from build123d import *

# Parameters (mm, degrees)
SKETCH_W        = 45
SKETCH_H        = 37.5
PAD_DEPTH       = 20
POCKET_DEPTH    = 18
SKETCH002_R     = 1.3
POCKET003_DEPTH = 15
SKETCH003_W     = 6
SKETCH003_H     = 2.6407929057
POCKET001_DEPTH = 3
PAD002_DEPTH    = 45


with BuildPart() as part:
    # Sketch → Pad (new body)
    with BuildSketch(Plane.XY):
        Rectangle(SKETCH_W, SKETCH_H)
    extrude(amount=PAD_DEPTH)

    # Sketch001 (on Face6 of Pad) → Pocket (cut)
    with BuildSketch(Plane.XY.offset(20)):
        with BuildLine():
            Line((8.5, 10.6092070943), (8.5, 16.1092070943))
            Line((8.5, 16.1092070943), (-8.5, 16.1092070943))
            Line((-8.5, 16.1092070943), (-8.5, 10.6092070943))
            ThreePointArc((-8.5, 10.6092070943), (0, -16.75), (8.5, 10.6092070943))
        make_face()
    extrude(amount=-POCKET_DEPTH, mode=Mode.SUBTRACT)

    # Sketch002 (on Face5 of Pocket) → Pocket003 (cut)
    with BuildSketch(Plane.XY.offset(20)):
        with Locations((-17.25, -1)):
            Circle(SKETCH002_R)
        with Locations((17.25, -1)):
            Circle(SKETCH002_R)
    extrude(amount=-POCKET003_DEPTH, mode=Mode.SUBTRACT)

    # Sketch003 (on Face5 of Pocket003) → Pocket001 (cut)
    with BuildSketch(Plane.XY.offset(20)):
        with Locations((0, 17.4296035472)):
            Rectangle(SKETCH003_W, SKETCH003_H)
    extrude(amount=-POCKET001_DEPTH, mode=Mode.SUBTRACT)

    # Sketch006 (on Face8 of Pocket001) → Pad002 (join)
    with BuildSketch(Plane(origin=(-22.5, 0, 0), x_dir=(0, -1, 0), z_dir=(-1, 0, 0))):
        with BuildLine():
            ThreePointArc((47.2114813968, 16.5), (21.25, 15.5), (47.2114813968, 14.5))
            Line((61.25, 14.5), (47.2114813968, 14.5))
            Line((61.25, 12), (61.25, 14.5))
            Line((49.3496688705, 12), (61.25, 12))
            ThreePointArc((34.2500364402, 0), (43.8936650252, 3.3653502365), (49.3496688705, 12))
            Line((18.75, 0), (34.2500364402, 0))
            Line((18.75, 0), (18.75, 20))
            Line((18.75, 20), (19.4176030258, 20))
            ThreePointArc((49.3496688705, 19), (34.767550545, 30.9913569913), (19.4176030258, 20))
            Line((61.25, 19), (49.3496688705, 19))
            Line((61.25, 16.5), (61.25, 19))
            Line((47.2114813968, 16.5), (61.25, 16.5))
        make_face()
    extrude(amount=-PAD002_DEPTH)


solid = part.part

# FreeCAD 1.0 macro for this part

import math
import FreeCAD as App
import Part
import Sketcher

V = App.Vector
Q = App.Units.Quantity

doc = App.newDocument("Part")
params = doc.addObject("Spreadsheet::Sheet", "Params")
for row, (alias, value) in enumerate([
    ("sketch1_width", "45 mm"),
    ("sketch1_height", "37.5 mm"),
    ("pad1_length", "20 mm"),
    ("sketch2_radius", "15 mm"),
    ("sketch2_width", "17 mm"),
    ("sketch2_height", "5.5 mm"),
    ("pocket1_length", "18 mm"),
    ("sketch3_diameter", "2.6 mm"),
    ("pocket2_length", "15 mm"),
    ("sketch4_width", "6 mm"),
    ("pocket3_length", "3 mm"),
    ("sketch5_radius", "13 mm"),
    ("sketch5_radius2", "15.5 mm"),
    ("sketch5_height", "20 mm"),
    ("sketch5_height2", "2.5 mm"),
    ("pad2_length", "45 mm"),
], start=1):
    params.set(f"A{row}", alias)
    params.set(f"B{row}", "=" + value)
    params.setAlias(f"B{row}", alias)

body = doc.addObject("PartDesign::Body", "Body")

# Sketch on XY plane
sketch1 = body.newObject("Sketcher::SketchObject", "Sketch")
sketch1.AttachmentSupport = (doc.getObject("XY_Plane"), [""])
sketch1.MapMode = "FlatFace"
sketch1.addGeometry(Part.LineSegment(V(-22, 19, 0), V(-22, -19, 0)), False)
sketch1.addGeometry(Part.LineSegment(V(-22, -19, 0), V(22, -19, 0)), False)
sketch1.addGeometry(Part.LineSegment(V(22, -19, 0), V(22, 19, 0)), False)
sketch1.addGeometry(Part.LineSegment(V(22, 19, 0), V(-22, 19, 0)), False)
sketch1.addConstraint(Sketcher.Constraint("Coincident", 0, 2, 1, 1))
sketch1.addConstraint(Sketcher.Constraint("Coincident", 1, 2, 2, 1))
sketch1.addConstraint(Sketcher.Constraint("Coincident", 2, 2, 3, 1))
sketch1.addConstraint(Sketcher.Constraint("Coincident", 3, 2, 0, 1))
sketch1.addConstraint(Sketcher.Constraint("Vertical", 0))
sketch1.addConstraint(Sketcher.Constraint("Horizontal", 1))
sketch1.addConstraint(Sketcher.Constraint("Vertical", 2))
sketch1.addConstraint(Sketcher.Constraint("Horizontal", 3))
sketch1.addConstraint(Sketcher.Constraint("Symmetric", 0, 2, 2, 2, -1, 1))
sketch1.addConstraint(Sketcher.Constraint("DistanceX", 1, 1, 1, 2, Q("45 mm")))
sketch1.addConstraint(Sketcher.Constraint("DistanceY", 0, 2, 0, 1, Q("37.5 mm")))
sketch1.setExpression("Constraints[9]", "Params.sketch1_width")
sketch1.setExpression("Constraints[10]", "Params.sketch1_height")
pad1 = body.newObject("PartDesign::Pad", "Pad")
pad1.Profile = sketch1
pad1.setExpression("Length", "Params.pad1_length")

# Sketch on XY plane
sketch2 = body.newObject("Sketcher::SketchObject", "Sketch001")
sketch2.AttachmentSupport = (doc.getObject("XY_Plane"), [""])
sketch2.MapMode = "FlatFace"
sketch2.AttachmentOffset = App.Placement(V(0, 0, 20), App.Rotation())
sketch2.addGeometry(Part.LineSegment(V(8, 11, 0), V(8, 16, 0)), False)
sketch2.addGeometry(Part.LineSegment(V(8, 16, 0), V(-8, 16, 0)), False)
sketch2.addGeometry(Part.LineSegment(V(-8, 16, 0), V(-8, 11, 0)), False)
sketch2.addGeometry(Part.ArcOfCircle(Part.Circle(V(0, -2, 0), V(0, 0, 1), 15), math.radians(125), math.radians(415)), False)
sketch2.addConstraint(Sketcher.Constraint("Coincident", 0, 2, 1, 1))
sketch2.addConstraint(Sketcher.Constraint("Coincident", 1, 2, 2, 1))
sketch2.addConstraint(Sketcher.Constraint("Coincident", 2, 2, 3, 1))
sketch2.addConstraint(Sketcher.Constraint("Coincident", 3, 2, 0, 1))
sketch2.addConstraint(Sketcher.Constraint("Vertical", 0))
sketch2.addConstraint(Sketcher.Constraint("Horizontal", 1))
sketch2.addConstraint(Sketcher.Constraint("Vertical", 2))
sketch2.addConstraint(Sketcher.Constraint("Symmetric", 2, 2, 3, 2, -2))
sketch2.addConstraint(Sketcher.Constraint("Radius", 3, Q("15 mm")))
sketch2.addConstraint(Sketcher.Constraint("DistanceX", 1, 2, 1, 1, Q("17 mm")))
sketch2.addConstraint(Sketcher.Constraint("DistanceY", 0, 1, 0, 2, Q("5.5 mm")))
sketch2.addConstraint(Sketcher.Constraint("DistanceY", 3, 3, -1, 1, Q("1.75 mm")))
sketch2.setExpression("Constraints[8]", "Params.sketch2_radius")
sketch2.setExpression("Constraints[9]", "Params.sketch2_width")
sketch2.setExpression("Constraints[10]", "Params.sketch2_height")
pocket1 = body.newObject("PartDesign::Pocket", "Pocket")
pocket1.Profile = sketch2
pocket1.setExpression("Length", "Params.pocket1_length")

# Sketch on XY plane
sketch3 = body.newObject("Sketcher::SketchObject", "Sketch002")
sketch3.AttachmentSupport = (doc.getObject("XY_Plane"), [""])
sketch3.MapMode = "FlatFace"
sketch3.AttachmentOffset = App.Placement(V(0, 0, 20), App.Rotation())
sketch3.addGeometry(Part.Circle(V(-17.2, -1, 0), V(0, 0, 1), 1.3), False)
sketch3.addGeometry(Part.Circle(V(17.2, -1, 0), V(0, 0, 1), 1.3), False)
sketch3.addConstraint(Sketcher.Constraint("Equal", 0, 1))
sketch3.addConstraint(Sketcher.Constraint("Symmetric", 0, 3, 1, 3, -2))
sketch3.addConstraint(Sketcher.Constraint("Diameter", 0, Q("2.6 mm")))
sketch3.addConstraint(Sketcher.Constraint("DistanceY", 0, 3, -1, 1, Q("1 mm")))
sketch3.addConstraint(Sketcher.Constraint("DistanceX", 0, 3, 1, 3, Q("34.5 mm")))
sketch3.setExpression("Constraints[2]", "Params.sketch3_diameter")
pocket2 = body.newObject("PartDesign::Pocket", "Pocket001")
pocket2.Profile = sketch3
pocket2.setExpression("Length", "Params.pocket2_length")

# Sketch on XY plane
sketch4 = body.newObject("Sketcher::SketchObject", "Sketch003")
sketch4.AttachmentSupport = (doc.getObject("XY_Plane"), [""])
sketch4.MapMode = "FlatFace"
sketch4.AttachmentOffset = App.Placement(V(0, 0, 20), App.Rotation())
sketch4.addGeometry(Part.LineSegment(V(-3, 18.8, 0), V(-3, 16.1, 0)), False)
sketch4.addGeometry(Part.LineSegment(V(-3, 16.1, 0), V(3, 16.1, 0)), False)
sketch4.addGeometry(Part.LineSegment(V(3, 16.1, 0), V(3, 18.8, 0)), False)
sketch4.addGeometry(Part.LineSegment(V(3, 18.8, 0), V(-3, 18.8, 0)), False)
sketch4.addConstraint(Sketcher.Constraint("Coincident", 0, 2, 1, 1))
sketch4.addConstraint(Sketcher.Constraint("Coincident", 1, 2, 2, 1))
sketch4.addConstraint(Sketcher.Constraint("Coincident", 2, 2, 3, 1))
sketch4.addConstraint(Sketcher.Constraint("Coincident", 3, 2, 0, 1))
sketch4.addConstraint(Sketcher.Constraint("Vertical", 0))
sketch4.addConstraint(Sketcher.Constraint("Horizontal", 1))
sketch4.addConstraint(Sketcher.Constraint("Vertical", 2))
sketch4.addConstraint(Sketcher.Constraint("Horizontal", 3))
sketch4.addConstraint(Sketcher.Constraint("DistanceX", 1, 1, 1, 2, Q("6 mm")))
sketch4.addConstraint(Sketcher.Constraint("DistanceX", 0, 2, -1, 1, Q("3 mm")))
sketch4.addConstraint(Sketcher.Constraint("DistanceY", -1, 1, 2, 2, Q("18.75 mm")))
sketch4.addConstraint(Sketcher.Constraint("DistanceY", 0, 2, 0, 1, Q("2.640793 mm")))
sketch4.setExpression("Constraints[8]", "Params.sketch4_width")
pocket3 = body.newObject("PartDesign::Pocket", "Pocket002")
pocket3.Profile = sketch4
pocket3.setExpression("Length", "Params.pocket3_length")

# Sketch on YZ plane
sketch5 = body.newObject("Sketcher::SketchObject", "Sketch004")
sketch5.AttachmentSupport = (doc.getObject("YZ_Plane"), [""])
sketch5.MapMode = "FlatFace"
sketch5.AttachmentOffset = App.Placement(V(0, 0, -22.5), App.Rotation())
sketch5.addGeometry(Part.ArcOfCircle(Part.Circle(V(-34.2, 15.5, 0), V(0, 0, 1), 13), math.radians(-176), math.radians(176)), False)
sketch5.addGeometry(Part.LineSegment(V(-47.2, 16.5, 0), V(-61.2, 16.5, 0)), False)
sketch5.addGeometry(Part.LineSegment(V(-61.2, 16.5, 0), V(-61.2, 19, 0)), False)
sketch5.addGeometry(Part.LineSegment(V(-61.2, 19, 0), V(-49.3, 19, 0)), False)
sketch5.addGeometry(Part.ArcOfCircle(Part.Circle(V(-34.2, 15.5, 0), V(0, 0, 1), 15.5), math.radians(17), math.radians(167)), False)
sketch5.addGeometry(Part.LineSegment(V(-19.4, 20, 0), V(-18.8, 20, 0)), False)
sketch5.addGeometry(Part.LineSegment(V(-18.8, 20, 0), V(-18.8, 0, 0)), False)
sketch5.addGeometry(Part.LineSegment(V(-18.8, 0, 0), V(-34.3, 0, 0)), False)
sketch5.addGeometry(Part.ArcOfCircle(Part.Circle(V(-34.2, 15.5, 0), V(0, 0, 1), 15.5), math.radians(-167), math.radians(-90)), False)
sketch5.addGeometry(Part.LineSegment(V(-49.3, 12, 0), V(-61.2, 12, 0)), False)
sketch5.addGeometry(Part.LineSegment(V(-61.2, 12, 0), V(-61.2, 14.5, 0)), False)
sketch5.addGeometry(Part.LineSegment(V(-61.2, 14.5, 0), V(-47.2, 14.5, 0)), False)
sketch5.addConstraint(Sketcher.Constraint("Coincident", 0, 2, 1, 1))
sketch5.addConstraint(Sketcher.Constraint("Coincident", 1, 2, 2, 1))
sketch5.addConstraint(Sketcher.Constraint("Coincident", 2, 2, 3, 1))
sketch5.addConstraint(Sketcher.Constraint("Coincident", 3, 2, 4, 2))
sketch5.addConstraint(Sketcher.Constraint("Coincident", 4, 1, 5, 1))
sketch5.addConstraint(Sketcher.Constraint("Coincident", 5, 2, 6, 1))
sketch5.addConstraint(Sketcher.Constraint("Coincident", 6, 2, 7, 1))
sketch5.addConstraint(Sketcher.Constraint("Coincident", 7, 2, 8, 2))
sketch5.addConstraint(Sketcher.Constraint("Coincident", 8, 1, 9, 1))
sketch5.addConstraint(Sketcher.Constraint("Coincident", 9, 2, 10, 1))
sketch5.addConstraint(Sketcher.Constraint("Coincident", 10, 2, 11, 1))
sketch5.addConstraint(Sketcher.Constraint("Coincident", 11, 2, 0, 1))
sketch5.addConstraint(Sketcher.Constraint("Horizontal", 1))
sketch5.addConstraint(Sketcher.Constraint("Vertical", 2))
sketch5.addConstraint(Sketcher.Constraint("Horizontal", 3))
sketch5.addConstraint(Sketcher.Constraint("Horizontal", 5))
sketch5.addConstraint(Sketcher.Constraint("Vertical", 6))
sketch5.addConstraint(Sketcher.Constraint("Horizontal", 7))
sketch5.addConstraint(Sketcher.Constraint("Horizontal", 9))
sketch5.addConstraint(Sketcher.Constraint("Vertical", 10))
sketch5.addConstraint(Sketcher.Constraint("Horizontal", 11))
sketch5.addConstraint(Sketcher.Constraint("Coincident", 4, 3, 0, 3))
sketch5.addConstraint(Sketcher.Constraint("Coincident", 8, 3, 0, 3))
sketch5.addConstraint(Sketcher.Constraint("Equal", 4, 8))
sketch5.addConstraint(Sketcher.Constraint("PointOnObject", 6, 2, -1))
sketch5.addConstraint(Sketcher.Constraint("Vertical", 3, 2, 8, 1))
sketch5.addConstraint(Sketcher.Constraint("Vertical", 2, 2, 9, 2))
sketch5.addConstraint(Sketcher.Constraint("Vertical", 0, 2, 11, 2))
sketch5.addConstraint(Sketcher.Constraint("Radius", 0, Q("13 mm")))
sketch5.addConstraint(Sketcher.Constraint("Radius", 4, Q("15.5 mm")))
sketch5.addConstraint(Sketcher.Constraint("DistanceY", 6, 2, 6, 1, Q("20 mm")))
sketch5.addConstraint(Sketcher.Constraint("DistanceY", 2, 1, 2, 2, Q("2.5 mm")))
sketch5.addConstraint(Sketcher.Constraint("DistanceY", -1, 1, 2, 2, Q("19 mm")))
sketch5.addConstraint(Sketcher.Constraint("DistanceX", 1, 2, 0, 3, Q("27 mm")))
sketch5.addConstraint(Sketcher.Constraint("DistanceX", 0, 3, 5, 2, Q("15.5 mm")))
sketch5.addConstraint(Sketcher.Constraint("DistanceX", 0, 3, -1, 1, Q("34.25 mm")))
sketch5.addConstraint(Sketcher.Constraint("DistanceX", 7, 2, 7, 1, Q("15.500036 mm")))
sketch5.setExpression("Constraints[28]", "Params.sketch5_radius")
sketch5.setExpression("Constraints[29]", "Params.sketch5_radius2")
sketch5.setExpression("Constraints[30]", "Params.sketch5_height")
sketch5.setExpression("Constraints[31]", "Params.sketch5_height2")
pad2 = body.newObject("PartDesign::Pad", "Pad001")
pad2.Profile = sketch5
pad2.setExpression("Length", "Params.pad2_length")

doc.recompute()
